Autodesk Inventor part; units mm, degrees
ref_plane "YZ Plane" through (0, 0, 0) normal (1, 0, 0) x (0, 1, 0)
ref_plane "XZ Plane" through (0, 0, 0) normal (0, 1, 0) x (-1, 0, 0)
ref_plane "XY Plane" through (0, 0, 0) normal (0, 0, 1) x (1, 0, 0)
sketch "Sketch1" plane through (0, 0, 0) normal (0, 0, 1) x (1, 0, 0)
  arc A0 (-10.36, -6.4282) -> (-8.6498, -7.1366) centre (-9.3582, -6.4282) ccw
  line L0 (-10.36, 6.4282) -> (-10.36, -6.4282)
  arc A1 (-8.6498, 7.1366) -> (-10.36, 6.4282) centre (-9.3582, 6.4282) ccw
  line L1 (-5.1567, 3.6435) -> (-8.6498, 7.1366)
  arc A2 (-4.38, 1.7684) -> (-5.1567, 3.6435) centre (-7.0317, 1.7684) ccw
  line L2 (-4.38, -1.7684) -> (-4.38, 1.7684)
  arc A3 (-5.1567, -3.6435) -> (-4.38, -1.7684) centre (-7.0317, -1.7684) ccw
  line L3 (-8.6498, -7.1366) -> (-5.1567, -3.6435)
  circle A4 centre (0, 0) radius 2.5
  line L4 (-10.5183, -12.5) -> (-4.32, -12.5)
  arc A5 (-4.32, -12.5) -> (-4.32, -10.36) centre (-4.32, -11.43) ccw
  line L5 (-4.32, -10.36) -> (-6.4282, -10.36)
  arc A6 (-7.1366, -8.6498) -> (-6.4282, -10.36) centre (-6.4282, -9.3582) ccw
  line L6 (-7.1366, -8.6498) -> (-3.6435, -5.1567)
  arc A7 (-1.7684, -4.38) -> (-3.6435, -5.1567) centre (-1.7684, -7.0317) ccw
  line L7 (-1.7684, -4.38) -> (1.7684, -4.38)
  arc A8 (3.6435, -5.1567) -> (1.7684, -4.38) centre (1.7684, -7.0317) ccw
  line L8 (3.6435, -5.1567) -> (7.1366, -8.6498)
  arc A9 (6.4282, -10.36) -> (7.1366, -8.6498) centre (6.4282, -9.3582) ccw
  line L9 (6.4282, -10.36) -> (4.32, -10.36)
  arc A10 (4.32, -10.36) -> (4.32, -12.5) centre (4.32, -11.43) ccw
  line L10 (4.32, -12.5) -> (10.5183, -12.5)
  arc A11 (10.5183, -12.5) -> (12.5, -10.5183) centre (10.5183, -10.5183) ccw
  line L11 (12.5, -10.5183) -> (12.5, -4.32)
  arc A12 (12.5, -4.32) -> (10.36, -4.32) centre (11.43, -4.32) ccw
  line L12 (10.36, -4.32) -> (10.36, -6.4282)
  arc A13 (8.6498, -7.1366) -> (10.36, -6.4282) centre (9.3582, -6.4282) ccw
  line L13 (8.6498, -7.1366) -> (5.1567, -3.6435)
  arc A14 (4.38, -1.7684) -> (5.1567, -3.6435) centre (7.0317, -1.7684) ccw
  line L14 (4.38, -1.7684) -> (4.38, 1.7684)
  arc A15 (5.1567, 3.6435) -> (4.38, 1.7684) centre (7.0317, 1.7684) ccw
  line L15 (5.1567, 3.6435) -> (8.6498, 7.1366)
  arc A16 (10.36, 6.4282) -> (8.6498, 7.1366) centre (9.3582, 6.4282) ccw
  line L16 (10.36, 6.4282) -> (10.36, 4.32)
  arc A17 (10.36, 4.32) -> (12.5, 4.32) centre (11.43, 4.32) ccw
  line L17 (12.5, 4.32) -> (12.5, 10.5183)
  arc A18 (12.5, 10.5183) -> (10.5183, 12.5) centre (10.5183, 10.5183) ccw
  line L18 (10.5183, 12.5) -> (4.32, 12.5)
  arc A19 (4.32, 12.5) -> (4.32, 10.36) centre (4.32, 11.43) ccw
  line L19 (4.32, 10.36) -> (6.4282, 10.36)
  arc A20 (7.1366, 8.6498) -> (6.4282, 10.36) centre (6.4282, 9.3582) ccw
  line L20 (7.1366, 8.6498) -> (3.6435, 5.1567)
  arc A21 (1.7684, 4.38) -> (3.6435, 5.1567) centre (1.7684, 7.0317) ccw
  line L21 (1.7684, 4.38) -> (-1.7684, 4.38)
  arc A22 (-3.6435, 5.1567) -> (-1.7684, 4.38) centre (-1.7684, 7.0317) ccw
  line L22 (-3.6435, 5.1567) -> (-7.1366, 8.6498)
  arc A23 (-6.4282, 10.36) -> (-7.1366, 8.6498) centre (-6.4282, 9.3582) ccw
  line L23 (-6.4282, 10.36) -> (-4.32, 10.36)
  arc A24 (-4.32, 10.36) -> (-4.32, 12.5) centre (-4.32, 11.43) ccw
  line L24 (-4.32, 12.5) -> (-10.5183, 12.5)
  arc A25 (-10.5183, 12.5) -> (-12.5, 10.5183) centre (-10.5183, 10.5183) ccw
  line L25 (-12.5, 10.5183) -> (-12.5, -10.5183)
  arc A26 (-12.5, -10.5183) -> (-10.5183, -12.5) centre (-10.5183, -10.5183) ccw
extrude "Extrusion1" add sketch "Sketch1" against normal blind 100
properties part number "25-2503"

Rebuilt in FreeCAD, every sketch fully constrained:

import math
import FreeCAD as App
import Part
import Sketcher
Q = App.Units.Quantity

doc = App.newDocument("Part")
body = doc.addObject("PartDesign::Body", "Body")

# Sketch on XY plane
sketch1 = body.newObject("Sketcher::SketchObject", "Sketch")
sketch1.AttachmentSupport = (doc.getObject("XY_Plane"), [""])
sketch1.MapMode = "FlatFace"
sketch1.addGeometry([
    Part.ArcOfCircle(Part.Circle(App.Vector(-10.5, -10.5, 0), App.Vector(0, 0, 1), 2), math.radians(180), math.radians(270)),  # 0
    Part.LineSegment(App.Vector(-10.5, -12.5, 0), App.Vector(-4.3, -12.5, 0)),  # 1
    Part.ArcOfCircle(Part.Circle(App.Vector(-4.3, -11.4, 0), App.Vector(0, 0, 1), 1.1), math.radians(-90), math.radians(90)),  # 2
    Part.LineSegment(App.Vector(-4.3, -10.4, 0), App.Vector(-6.4, -10.4, 0)),  # 3
    Part.ArcOfCircle(Part.Circle(App.Vector(-6.4, -9.4, 0), App.Vector(0, 0, 1), 1), math.radians(135), math.radians(270)),  # 4
    Part.LineSegment(App.Vector(-7.1, -8.6, 0), App.Vector(-3.6, -5.2, 0)),  # 5
    Part.ArcOfCircle(Part.Circle(App.Vector(-1.8, -7, 0), App.Vector(0, 0, 1), 2.7), math.radians(90), math.radians(135)),  # 6
    Part.LineSegment(App.Vector(-1.8, -4.4, 0), App.Vector(1.8, -4.4, 0)),  # 7
    Part.ArcOfCircle(Part.Circle(App.Vector(1.8, -7, 0), App.Vector(0, 0, 1), 2.7), math.radians(45), math.radians(90)),  # 8
    Part.LineSegment(App.Vector(3.6, -5.2, 0), App.Vector(7.1, -8.6, 0)),  # 9
    Part.ArcOfCircle(Part.Circle(App.Vector(6.4, -9.4, 0), App.Vector(0, 0, 1), 1), math.radians(-90), math.radians(45)),  # 10
    Part.LineSegment(App.Vector(6.4, -10.4, 0), App.Vector(4.3, -10.4, 0)),  # 11
    Part.ArcOfCircle(Part.Circle(App.Vector(4.3, -11.4, 0), App.Vector(0, 0, 1), 1.1), math.radians(90), math.radians(270)),  # 12
    Part.LineSegment(App.Vector(4.3, -12.5, 0), App.Vector(10.5, -12.5, 0)),  # 13
    Part.ArcOfCircle(Part.Circle(App.Vector(10.5, -10.5, 0), App.Vector(0, 0, 1), 2), math.radians(-90), math.radians(0)),  # 14
    Part.LineSegment(App.Vector(12.5, -10.5, 0), App.Vector(12.5, -4.3, 0)),  # 15
    Part.ArcOfCircle(Part.Circle(App.Vector(11.4, -4.3, 0), App.Vector(0, 0, 1), 1.1), math.radians(0), math.radians(180)),  # 16
    Part.LineSegment(App.Vector(10.4, -4.3, 0), App.Vector(10.4, -6.4, 0)),  # 17
    Part.ArcOfCircle(Part.Circle(App.Vector(9.4, -6.4, 0), App.Vector(0, 0, 1), 1), math.radians(-135), math.radians(0)),  # 18
    Part.LineSegment(App.Vector(8.6, -7.1, 0), App.Vector(5.2, -3.6, 0)),  # 19
    Part.ArcOfCircle(Part.Circle(App.Vector(7, -1.8, 0), App.Vector(0, 0, 1), 2.7), math.radians(180), math.radians(225)),  # 20
    Part.LineSegment(App.Vector(4.4, -1.8, 0), App.Vector(4.4, 1.8, 0)),  # 21
    Part.ArcOfCircle(Part.Circle(App.Vector(7, 1.8, 0), App.Vector(0, 0, 1), 2.7), math.radians(135), math.radians(180)),  # 22
    Part.LineSegment(App.Vector(5.2, 3.6, 0), App.Vector(8.6, 7.1, 0)),  # 23
    Part.ArcOfCircle(Part.Circle(App.Vector(9.4, 6.4, 0), App.Vector(0, 0, 1), 1), math.radians(0), math.radians(135)),  # 24
    Part.LineSegment(App.Vector(10.4, 6.4, 0), App.Vector(10.4, 4.3, 0)),  # 25
    Part.ArcOfCircle(Part.Circle(App.Vector(11.4, 4.3, 0), App.Vector(0, 0, 1), 1.1), math.radians(180), math.radians(360)),  # 26
    Part.LineSegment(App.Vector(12.5, 4.3, 0), App.Vector(12.5, 10.5, 0)),  # 27
    Part.ArcOfCircle(Part.Circle(App.Vector(10.5, 10.5, 0), App.Vector(0, 0, 1), 2), math.radians(0), math.radians(90)),  # 28
    Part.LineSegment(App.Vector(10.5, 12.5, 0), App.Vector(4.3, 12.5, 0)),  # 29
    Part.ArcOfCircle(Part.Circle(App.Vector(4.3, 11.4, 0), App.Vector(0, 0, 1), 1.1), math.radians(90), math.radians(270)),  # 30
    Part.LineSegment(App.Vector(4.3, 10.4, 0), App.Vector(6.4, 10.4, 0)),  # 31
    Part.ArcOfCircle(Part.Circle(App.Vector(6.4, 9.4, 0), App.Vector(0, 0, 1), 1), math.radians(-45), math.radians(90)),  # 32
    Part.LineSegment(App.Vector(7.1, 8.6, 0), App.Vector(3.6, 5.2, 0)),  # 33
    Part.ArcOfCircle(Part.Circle(App.Vector(1.8, 7, 0), App.Vector(0, 0, 1), 2.7), math.radians(-90), math.radians(-45)),  # 34
    Part.LineSegment(App.Vector(1.8, 4.4, 0), App.Vector(-1.8, 4.4, 0)),  # 35
    Part.ArcOfCircle(Part.Circle(App.Vector(-1.8, 7, 0), App.Vector(0, 0, 1), 2.7), math.radians(-135), math.radians(-90)),  # 36
    Part.LineSegment(App.Vector(-3.6, 5.2, 0), App.Vector(-7.1, 8.6, 0)),  # 37
    Part.ArcOfCircle(Part.Circle(App.Vector(-6.4, 9.4, 0), App.Vector(0, 0, 1), 1), math.radians(90), math.radians(225)),  # 38
    Part.LineSegment(App.Vector(-6.4, 10.4, 0), App.Vector(-4.3, 10.4, 0)),  # 39
    Part.ArcOfCircle(Part.Circle(App.Vector(-4.3, 11.4, 0), App.Vector(0, 0, 1), 1.1), math.radians(-90), math.radians(90)),  # 40
    Part.LineSegment(App.Vector(-4.3, 12.5, 0), App.Vector(-10.5, 12.5, 0)),  # 41
    Part.ArcOfCircle(Part.Circle(App.Vector(-10.5, 10.5, 0), App.Vector(0, 0, 1), 2), math.radians(90), math.radians(180)),  # 42
    Part.LineSegment(App.Vector(-12.5, 10.5, 0), App.Vector(-12.5, -10.5, 0)),  # 43
    Part.ArcOfCircle(Part.Circle(App.Vector(-9.4, -6.4, 0), App.Vector(0, 0, 1), 1), math.radians(180), math.radians(315)),  # 44
    Part.LineSegment(App.Vector(-10.4, -6.4, 0), App.Vector(-10.4, 6.4, 0)),  # 45
    Part.ArcOfCircle(Part.Circle(App.Vector(-9.4, 6.4, 0), App.Vector(0, 0, 1), 1), math.radians(45), math.radians(180)),  # 46
    Part.LineSegment(App.Vector(-8.6, 7.1, 0), App.Vector(-5.2, 3.6, 0)),  # 47
    Part.ArcOfCircle(Part.Circle(App.Vector(-7, 1.8, 0), App.Vector(0, 0, 1), 2.7), math.radians(0), math.radians(45)),  # 48
    Part.LineSegment(App.Vector(-4.4, 1.8, 0), App.Vector(-4.4, -1.8, 0)),  # 49
    Part.ArcOfCircle(Part.Circle(App.Vector(-7, -1.8, 0), App.Vector(0, 0, 1), 2.7), math.radians(-45), math.radians(0)),  # 50
    Part.LineSegment(App.Vector(-5.2, -3.6, 0), App.Vector(-8.6, -7.1, 0)),  # 51
    Part.Circle(App.Vector(0, 0, 0), App.Vector(0, 0, 1), 2.5),  # 52
], False)
sketch1.addConstraint([
    Sketcher.Constraint("Tangent", 0, 2, 1, 1),
    Sketcher.Constraint("Tangent", 1, 2, 2, 1),
    Sketcher.Constraint("Tangent", 2, 2, 3, 1),
    Sketcher.Constraint("Tangent", 3, 2, 4, 2),
    Sketcher.Constraint("Tangent", 4, 1, 5, 1),
    Sketcher.Constraint("Tangent", 5, 2, 6, 2),
    Sketcher.Constraint("Tangent", 6, 1, 7, 1),
    Sketcher.Constraint("Tangent", 7, 2, 8, 2),
    Sketcher.Constraint("Tangent", 8, 1, 9, 1),
    Sketcher.Constraint("Tangent", 9, 2, 10, 2),
    Sketcher.Constraint("Tangent", 10, 1, 11, 1),
    Sketcher.Constraint("Tangent", 11, 2, 12, 1),
    Sketcher.Constraint("Tangent", 12, 2, 13, 1),
    Sketcher.Constraint("Tangent", 13, 2, 14, 1),
    Sketcher.Constraint("Tangent", 14, 2, 15, 1),
    Sketcher.Constraint("Tangent", 15, 2, 16, 1),
    Sketcher.Constraint("Tangent", 16, 2, 17, 1),
    Sketcher.Constraint("Tangent", 17, 2, 18, 2),
    Sketcher.Constraint("Tangent", 18, 1, 19, 1),
    Sketcher.Constraint("Tangent", 19, 2, 20, 2),
    Sketcher.Constraint("Tangent", 20, 1, 21, 1),
    Sketcher.Constraint("Tangent", 21, 2, 22, 2),
    Sketcher.Constraint("Tangent", 22, 1, 23, 1),
    Sketcher.Constraint("Tangent", 23, 2, 24, 2),
    Sketcher.Constraint("Tangent", 24, 1, 25, 1),
    Sketcher.Constraint("Tangent", 25, 2, 26, 1),
    Sketcher.Constraint("Tangent", 26, 2, 27, 1),
    Sketcher.Constraint("Tangent", 27, 2, 28, 1),
    Sketcher.Constraint("Tangent", 28, 2, 29, 1),
    Sketcher.Constraint("Tangent", 29, 2, 30, 1),
    Sketcher.Constraint("Tangent", 30, 2, 31, 1),
    Sketcher.Constraint("Tangent", 31, 2, 32, 2),
    Sketcher.Constraint("Tangent", 32, 1, 33, 1),
    Sketcher.Constraint("Tangent", 33, 2, 34, 2),
    Sketcher.Constraint("Tangent", 34, 1, 35, 1),
    Sketcher.Constraint("Tangent", 35, 2, 36, 2),
    Sketcher.Constraint("Tangent", 36, 1, 37, 1),
    Sketcher.Constraint("Tangent", 37, 2, 38, 2),
    Sketcher.Constraint("Tangent", 38, 1, 39, 1),
    Sketcher.Constraint("Tangent", 39, 2, 40, 1),
    Sketcher.Constraint("Tangent", 40, 2, 41, 1),
    Sketcher.Constraint("Tangent", 41, 2, 42, 1),
    Sketcher.Constraint("Tangent", 42, 2, 43, 1),
    Sketcher.Constraint("Tangent", 43, 2, 0, 1),
    Sketcher.Constraint("Tangent", 44, 1, 45, 1),
    Sketcher.Constraint("Tangent", 45, 2, 46, 2),
    Sketcher.Constraint("Tangent", 46, 1, 47, 1),
    Sketcher.Constraint("Tangent", 47, 2, 48, 2),
    Sketcher.Constraint("Tangent", 48, 1, 49, 1),
    Sketcher.Constraint("Tangent", 49, 2, 50, 2),
    Sketcher.Constraint("Tangent", 50, 1, 51, 1),
    Sketcher.Constraint("Tangent", 51, 2, 44, 2),
    Sketcher.Constraint("Horizontal", 1),
    Sketcher.Constraint("Horizontal", 3),
    Sketcher.Constraint("Horizontal", 7),
    Sketcher.Constraint("Horizontal", 11),
    Sketcher.Constraint("Horizontal", 13),
    Sketcher.Constraint("Vertical", 15),
    Sketcher.Constraint("Vertical", 17),
    Sketcher.Constraint("Vertical", 21),
    Sketcher.Constraint("Vertical", 25),
    Sketcher.Constraint("Vertical", 27),
    Sketcher.Constraint("Horizontal", 29),
    Sketcher.Constraint("Horizontal", 31),
    Sketcher.Constraint("Horizontal", 35),
    Sketcher.Constraint("Horizontal", 39),
    Sketcher.Constraint("Horizontal", 41),
    Sketcher.Constraint("Vertical", 43),
    Sketcher.Constraint("Vertical", 45),
    Sketcher.Constraint("Vertical", 49),
    Sketcher.Constraint("Coincident", 52, 3, -1, 1),
    Sketcher.Constraint("Equal", 6, 8),
    Sketcher.Constraint("Equal", 4, 10),
    Sketcher.Constraint("Equal", 2, 12),
    Sketcher.Constraint("Equal", 0, 14),
    Sketcher.Constraint("Equal", 12, 16),
    Sketcher.Constraint("Equal", 10, 18),
    Sketcher.Constraint("Equal", 8, 20),
    Sketcher.Constraint("Equal", 20, 22),
    Sketcher.Constraint("Equal", 18, 24),
    Sketcher.Constraint("Equal", 16, 26),
    Sketcher.Constraint("Equal", 14, 28),
    Sketcher.Constraint("Equal", 26, 30),
    Sketcher.Constraint("Equal", 24, 32),
    Sketcher.Constraint("Equal", 22, 34),
    Sketcher.Constraint("Equal", 34, 36),
    Sketcher.Constraint("Equal", 32, 38),
    Sketcher.Constraint("Equal", 30, 40),
    Sketcher.Constraint("Equal", 28, 42),
    Sketcher.Constraint("Equal", 38, 44),
    Sketcher.Constraint("Equal", 44, 46),
    Sketcher.Constraint("Equal", 36, 48),
    Sketcher.Constraint("Equal", 48, 50),
    Sketcher.Constraint("Symmetric", 0, 3, 28, 3, -1, 1),
    Sketcher.Constraint("Symmetric", 6, 3, 34, 3, -1, 1),
    Sketcher.Constraint("Symmetric", 10, 3, 38, 3, -1, 1),
    Sketcher.Constraint("Symmetric", 24, 3, 44, 3, -1, 1),
    Sketcher.Constraint("Symmetric", 18, 3, 46, 3, -1, 1),
    Sketcher.Constraint("Symmetric", 20, 3, 48, 3, -1, 1),
    Sketcher.Constraint("Symmetric", 4, 3, 10, 3, -2),
    Sketcher.Constraint("Symmetric", 33, 2, 36, 1, -2),
    Sketcher.Constraint("Symmetric", 23, 2, 46, 1, -2),
    Sketcher.Constraint("Perpendicular", 5, 9),
    Sketcher.Constraint("Parallel", 9, 19),
    Sketcher.Constraint("Perpendicular", 19, 23),
    Sketcher.Constraint("Perpendicular", 47, 51),
    Sketcher.Constraint("Vertical", 12, 3, 30, 3),
    Sketcher.Constraint("Vertical", 2, 3, 40, 3),
    Sketcher.Constraint("Equal", 3, 11),
    Sketcher.Constraint("Equal", 41, 15),
    Sketcher.Constraint("Equal", 39, 17),
    Sketcher.Constraint("Equal", 35, 21),
    Sketcher.Constraint("Equal", 17, 25),
    Sketcher.Constraint("Equal", 9, 19),
    Sketcher.Constraint("Radius", 6, Q("0.1044 in")),
    Sketcher.Constraint("Diameter", 52, 5.0),
    Sketcher.Constraint("DistanceX", 3, 2, 3, 1, Q("0.083 in")),
    Sketcher.Constraint("DistanceY", 2, 3, -1, 1, Q("0.45 in")),
    Sketcher.Constraint("Radius", 0, 1.9817),
    Sketcher.Constraint("Radius", 2, 1.07),
    Sketcher.Constraint("Radius", 4, 1.0018),
    Sketcher.Constraint("DistanceX", 1, 1, 1, 2, 6.1983),
    Sketcher.Constraint("DistanceX", 7, 1, 7, 2, 3.5368),
])
pad1 = body.newObject("PartDesign::Pad", "Pad")
pad1.Profile = sketch1
pad1.Length = Q("3.9370079 in")
pad1.Reversed = True

doc.recompute()
